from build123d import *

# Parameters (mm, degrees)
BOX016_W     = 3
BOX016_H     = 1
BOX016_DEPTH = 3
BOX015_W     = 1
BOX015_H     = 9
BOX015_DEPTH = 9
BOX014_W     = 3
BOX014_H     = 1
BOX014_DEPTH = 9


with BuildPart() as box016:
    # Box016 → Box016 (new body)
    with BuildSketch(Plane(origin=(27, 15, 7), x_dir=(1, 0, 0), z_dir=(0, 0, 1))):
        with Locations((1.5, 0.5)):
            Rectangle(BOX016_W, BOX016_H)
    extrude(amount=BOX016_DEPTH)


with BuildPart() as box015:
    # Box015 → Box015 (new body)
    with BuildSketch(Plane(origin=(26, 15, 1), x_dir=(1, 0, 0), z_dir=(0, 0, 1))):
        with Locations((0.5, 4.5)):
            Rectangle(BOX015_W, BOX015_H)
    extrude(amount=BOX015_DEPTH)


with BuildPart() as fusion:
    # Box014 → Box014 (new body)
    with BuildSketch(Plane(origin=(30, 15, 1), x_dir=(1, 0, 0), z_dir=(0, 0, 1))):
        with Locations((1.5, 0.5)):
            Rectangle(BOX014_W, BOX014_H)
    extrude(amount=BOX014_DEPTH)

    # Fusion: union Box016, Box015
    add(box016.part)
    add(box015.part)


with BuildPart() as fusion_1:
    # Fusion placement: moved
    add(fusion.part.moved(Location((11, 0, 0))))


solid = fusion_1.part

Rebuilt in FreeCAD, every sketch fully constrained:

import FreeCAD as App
import Part
import Sketcher

V = App.Vector

doc = App.newDocument("Part")
body = doc.addObject("PartDesign::Body", "Body")

sketch1 = doc.addObject("Sketcher::SketchObject", "Sketch")
body.addObject(sketch1)
sketch1.AttachmentSupport = (doc.XY_Plane, [""])
sketch1.MapMode = "FlatFace"
sketch1.AttachmentOffset = App.Placement(V(0, 0, 7), App.Rotation())
sketch1.addGeometry(Part.LineSegment(V(27, 16, 0), V(27, 15, 0)), False)
sketch1.addGeometry(Part.LineSegment(V(27, 15, 0), V(30, 15, 0)), False)
sketch1.addGeometry(Part.LineSegment(V(30, 15, 0), V(30, 16, 0)), False)
sketch1.addGeometry(Part.LineSegment(V(30, 16, 0), V(27, 16, 0)), False)
sketch1.addConstraint(Sketcher.Constraint("Coincident", 0, 2, 1, 1))
sketch1.addConstraint(Sketcher.Constraint("Coincident", 1, 2, 2, 1))
sketch1.addConstraint(Sketcher.Constraint("Coincident", 2, 2, 3, 1))
sketch1.addConstraint(Sketcher.Constraint("Coincident", 3, 2, 0, 1))
sketch1.addConstraint(Sketcher.Constraint("Vertical", 0))
sketch1.addConstraint(Sketcher.Constraint("Horizontal", 1))
sketch1.addConstraint(Sketcher.Constraint("Vertical", 2))
sketch1.addConstraint(Sketcher.Constraint("Horizontal", 3))
sketch1.addConstraint(Sketcher.Constraint("DistanceX", 1, 1, 1, 2, 3.0))
sketch1.addConstraint(Sketcher.Constraint("DistanceY", 0, 2, 0, 1, 1.0))
sketch1.addConstraint(Sketcher.Constraint("DistanceX", -1, 1, 0, 2, 27.0))
sketch1.addConstraint(Sketcher.Constraint("DistanceY", -1, 1, 0, 2, 15.0))
pad1 = doc.addObject("PartDesign::Pad", "Pad")
body.addObject(pad1)
pad1.Profile = sketch1
pad1.Length = 3
body2 = doc.addObject("PartDesign::Body", "Body001")

sketch2 = doc.addObject("Sketcher::SketchObject", "Sketch001")
body2.addObject(sketch2)
sketch2.AttachmentSupport = (doc.getObject("XY_Plane001"), [""])
sketch2.MapMode = "FlatFace"
sketch2.AttachmentOffset = App.Placement(V(0, 0, 1), App.Rotation())
sketch2.addGeometry(Part.LineSegment(V(26, 24, 0), V(26, 15, 0)), False)
sketch2.addGeometry(Part.LineSegment(V(26, 15, 0), V(27, 15, 0)), False)
sketch2.addGeometry(Part.LineSegment(V(27, 15, 0), V(27, 24, 0)), False)
sketch2.addGeometry(Part.LineSegment(V(27, 24, 0), V(26, 24, 0)), False)
sketch2.addConstraint(Sketcher.Constraint("Coincident", 0, 2, 1, 1))
sketch2.addConstraint(Sketcher.Constraint("Coincident", 1, 2, 2, 1))
sketch2.addConstraint(Sketcher.Constraint("Coincident", 2, 2, 3, 1))
sketch2.addConstraint(Sketcher.Constraint("Coincident", 3, 2, 0, 1))
sketch2.addConstraint(Sketcher.Constraint("Vertical", 0))
sketch2.addConstraint(Sketcher.Constraint("Horizontal", 1))
sketch2.addConstraint(Sketcher.Constraint("Vertical", 2))
sketch2.addConstraint(Sketcher.Constraint("Horizontal", 3))
sketch2.addConstraint(Sketcher.Constraint("DistanceX", 1, 1, 1, 2, 1.0))
sketch2.addConstraint(Sketcher.Constraint("DistanceY", 0, 2, 0, 1, 9.0))
sketch2.addConstraint(Sketcher.Constraint("DistanceX", -1, 1, 0, 2, 26.0))
sketch2.addConstraint(Sketcher.Constraint("DistanceY", -1, 1, 0, 2, 15.0))
pad2 = doc.addObject("PartDesign::Pad", "Pad001")
body2.addObject(pad2)
pad2.Profile = sketch2
pad2.Length = 9
body3 = doc.addObject("PartDesign::Body", "Body002")

sketch3 = doc.addObject("Sketcher::SketchObject", "Sketch002")
body3.addObject(sketch3)
sketch3.AttachmentSupport = (doc.getObject("XY_Plane002"), [""])
sketch3.MapMode = "FlatFace"
sketch3.AttachmentOffset = App.Placement(V(0, 0, 1), App.Rotation())
sketch3.addGeometry(Part.LineSegment(V(30, 16, 0), V(30, 15, 0)), False)
sketch3.addGeometry(Part.LineSegment(V(30, 15, 0), V(33, 15, 0)), False)
sketch3.addGeometry(Part.LineSegment(V(33, 15, 0), V(33, 16, 0)), False)
sketch3.addGeometry(Part.LineSegment(V(33, 16, 0), V(30, 16, 0)), False)
sketch3.addConstraint(Sketcher.Constraint("Coincident", 0, 2, 1, 1))
sketch3.addConstraint(Sketcher.Constraint("Coincident", 1, 2, 2, 1))
sketch3.addConstraint(Sketcher.Constraint("Coincident", 2, 2, 3, 1))
sketch3.addConstraint(Sketcher.Constraint("Coincident", 3, 2, 0, 1))
sketch3.addConstraint(Sketcher.Constraint("Vertical", 0))
sketch3.addConstraint(Sketcher.Constraint("Horizontal", 1))
sketch3.addConstraint(Sketcher.Constraint("Vertical", 2))
sketch3.addConstraint(Sketcher.Constraint("Horizontal", 3))
sketch3.addConstraint(Sketcher.Constraint("DistanceX", 1, 1, 1, 2, 3.0))
sketch3.addConstraint(Sketcher.Constraint("DistanceY", 0, 2, 0, 1, 1.0))
sketch3.addConstraint(Sketcher.Constraint("DistanceX", -1, 1, 0, 2, 30.0))
sketch3.addConstraint(Sketcher.Constraint("DistanceY", -1, 1, 0, 2, 15.0))
pad3 = doc.addObject("PartDesign::Pad", "Pad002")
body3.addObject(pad3)
pad3.Profile = sketch3
pad3.Length = 9
doc.recompute()

boolean = doc.addObject("PartDesign::Boolean", "Boolean")
body3.addObject(boolean)
boolean.Type = "Fuse"
boolean.addObjects([body])
doc.recompute()

boolean2 = doc.addObject("PartDesign::Boolean", "Boolean001")
body3.addObject(boolean2)
boolean2.Type = "Fuse"
boolean2.addObjects([body2])
body4 = doc.addObject("PartDesign::Body", "Body003")
doc.recompute()

body3.Placement = App.Placement(V(11, 0, 0), App.Rotation(V(0, 0, 1), 0))
boolean3 = doc.addObject("PartDesign::Boolean", "Boolean002")
body4.addObject(boolean3)
boolean3.Type = "Fuse"
boolean3.addObjects([body3])

doc.recompute()
